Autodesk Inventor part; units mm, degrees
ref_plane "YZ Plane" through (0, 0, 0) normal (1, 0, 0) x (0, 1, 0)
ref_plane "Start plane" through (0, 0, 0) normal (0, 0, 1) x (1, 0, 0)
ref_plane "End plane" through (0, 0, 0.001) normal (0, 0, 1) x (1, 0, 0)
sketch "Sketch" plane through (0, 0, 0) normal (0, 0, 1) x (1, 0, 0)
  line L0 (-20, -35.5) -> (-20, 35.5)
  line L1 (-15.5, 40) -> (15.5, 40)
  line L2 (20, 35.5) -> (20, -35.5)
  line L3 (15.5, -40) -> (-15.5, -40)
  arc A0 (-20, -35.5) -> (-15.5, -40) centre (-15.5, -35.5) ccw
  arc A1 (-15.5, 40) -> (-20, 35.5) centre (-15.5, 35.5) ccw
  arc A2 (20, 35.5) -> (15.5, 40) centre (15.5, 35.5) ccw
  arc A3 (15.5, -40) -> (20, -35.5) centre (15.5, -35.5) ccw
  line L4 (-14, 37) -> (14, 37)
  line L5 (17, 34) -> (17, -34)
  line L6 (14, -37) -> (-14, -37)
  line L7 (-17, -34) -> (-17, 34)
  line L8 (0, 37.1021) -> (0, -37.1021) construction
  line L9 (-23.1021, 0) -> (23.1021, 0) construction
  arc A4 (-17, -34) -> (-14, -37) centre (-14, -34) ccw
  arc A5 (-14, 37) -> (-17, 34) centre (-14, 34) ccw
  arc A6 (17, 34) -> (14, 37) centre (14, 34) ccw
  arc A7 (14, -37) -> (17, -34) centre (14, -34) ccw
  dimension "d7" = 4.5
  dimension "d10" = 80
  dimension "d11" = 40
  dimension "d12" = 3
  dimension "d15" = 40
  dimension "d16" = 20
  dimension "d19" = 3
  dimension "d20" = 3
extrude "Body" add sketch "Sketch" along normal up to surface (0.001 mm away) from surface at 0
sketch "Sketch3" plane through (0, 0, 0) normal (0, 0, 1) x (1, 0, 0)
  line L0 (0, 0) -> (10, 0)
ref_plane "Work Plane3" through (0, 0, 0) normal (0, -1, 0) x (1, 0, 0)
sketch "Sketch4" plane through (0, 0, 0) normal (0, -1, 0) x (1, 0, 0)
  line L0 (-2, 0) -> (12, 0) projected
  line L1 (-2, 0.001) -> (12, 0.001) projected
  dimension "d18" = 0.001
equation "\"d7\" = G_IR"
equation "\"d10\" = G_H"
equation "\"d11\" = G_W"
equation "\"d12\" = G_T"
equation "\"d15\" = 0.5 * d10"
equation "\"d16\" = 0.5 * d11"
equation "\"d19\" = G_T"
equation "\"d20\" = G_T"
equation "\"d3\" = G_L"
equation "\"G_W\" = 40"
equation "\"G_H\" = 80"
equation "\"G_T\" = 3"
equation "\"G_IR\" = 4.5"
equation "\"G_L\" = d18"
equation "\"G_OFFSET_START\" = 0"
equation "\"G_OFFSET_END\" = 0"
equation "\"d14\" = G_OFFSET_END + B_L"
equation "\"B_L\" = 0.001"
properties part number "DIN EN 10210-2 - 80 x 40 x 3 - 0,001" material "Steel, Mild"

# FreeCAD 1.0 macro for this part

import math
import FreeCAD as App
import Part
import Sketcher

V = App.Vector

doc = App.newDocument("Part")
body = doc.addObject("PartDesign::Body", "Body")

sketch1 = body.newObject("Sketcher::SketchObject", "Sketch")
sketch1.AttachmentSupport = (doc.getObject("XY_Plane"), [""])
sketch1.MapMode = "FlatFace"
sketch1.addGeometry([
    Part.LineSegment(V(-20, 35.5, 0), V(-20, -35.5, 0)),
    Part.ArcOfCircle(Part.Circle(V(-15.5, -35.5, 0), V(0, 0, 1), 4.5), math.radians(180), math.radians(270)),
    Part.LineSegment(V(-15.5, -40, 0), V(15.5, -40, 0)),
    Part.ArcOfCircle(Part.Circle(V(15.5, -35.5, 0), V(0, 0, 1), 4.5), math.radians(-90), math.radians(0)),
    Part.LineSegment(V(20, -35.5, 0), V(20, 35.5, 0)),
    Part.ArcOfCircle(Part.Circle(V(15.5, 35.5, 0), V(0, 0, 1), 4.5), math.radians(0), math.radians(90)),
    Part.LineSegment(V(15.5, 40, 0), V(-15.5, 40, 0)),
    Part.ArcOfCircle(Part.Circle(V(-15.5, 35.5, 0), V(0, 0, 1), 4.5), math.radians(90), math.radians(180)),
    Part.ArcOfCircle(Part.Circle(V(-14, 34, 0), V(0, 0, 1), 3), math.radians(90), math.radians(180)),
    Part.LineSegment(V(-14, 37, 0), V(14, 37, 0)),
    Part.ArcOfCircle(Part.Circle(V(14, 34, 0), V(0, 0, 1), 3), math.radians(0), math.radians(90)),
    Part.LineSegment(V(17, 34, 0), V(17, -34, 0)),
    Part.ArcOfCircle(Part.Circle(V(14, -34, 0), V(0, 0, 1), 3), math.radians(-90), math.radians(0)),
    Part.LineSegment(V(14, -37, 0), V(-14, -37, 0)),
    Part.ArcOfCircle(Part.Circle(V(-14, -34, 0), V(0, 0, 1), 3), math.radians(180), math.radians(270)),
    Part.LineSegment(V(-17, -34, 0), V(-17, 34, 0)),
], False)
sketch1.addConstraint([
    Sketcher.Constraint("Tangent", 0, 2, 1, 1),
    Sketcher.Constraint("Tangent", 1, 2, 2, 1),
    Sketcher.Constraint("Tangent", 2, 2, 3, 1),
    Sketcher.Constraint("Tangent", 3, 2, 4, 1),
    Sketcher.Constraint("Tangent", 4, 2, 5, 1),
    Sketcher.Constraint("Tangent", 5, 2, 6, 1),
    Sketcher.Constraint("Tangent", 6, 2, 7, 1),
    Sketcher.Constraint("Tangent", 7, 2, 0, 1),
    Sketcher.Constraint("Tangent", 8, 1, 9, 1),
    Sketcher.Constraint("Tangent", 9, 2, 10, 2),
    Sketcher.Constraint("Tangent", 10, 1, 11, 1),
    Sketcher.Constraint("Tangent", 11, 2, 12, 2),
    Sketcher.Constraint("Tangent", 12, 1, 13, 1),
    Sketcher.Constraint("Tangent", 13, 2, 14, 2),
    Sketcher.Constraint("Tangent", 14, 1, 15, 1),
    Sketcher.Constraint("Tangent", 15, 2, 8, 2),
    Sketcher.Constraint("Vertical", 0),
    Sketcher.Constraint("Horizontal", 2),
    Sketcher.Constraint("Vertical", 4),
    Sketcher.Constraint("Horizontal", 6),
    Sketcher.Constraint("Horizontal", 9),
    Sketcher.Constraint("Vertical", 11),
    Sketcher.Constraint("Horizontal", 13),
    Sketcher.Constraint("Vertical", 15),
    Sketcher.Constraint("Equal", 1, 3),
    Sketcher.Constraint("Equal", 3, 5),
    Sketcher.Constraint("Equal", 5, 7),
    Sketcher.Constraint("Equal", 8, 10),
    Sketcher.Constraint("Equal", 10, 12),
    Sketcher.Constraint("Equal", 12, 14),
    Sketcher.Constraint("Symmetric", 1, 3, 5, 3, -1, 1),
    Sketcher.Constraint("Symmetric", 8, 3, 12, 3, -1, 1),
    Sketcher.Constraint("Radius", 8, 3.0),
    Sketcher.Constraint("Radius", 1, 4.5),
    Sketcher.Constraint("DistanceX", 0, 2, -1, 1, 20.0),
    Sketcher.Constraint("DistanceY", 1, 2, -1, 1, 40.0),
    Sketcher.Constraint("DistanceY", 8, 1, 6, 2, 3.0),
    Sketcher.Constraint("DistanceX", 10, 1, 4, 2, 3.0),
])
pad1 = body.newObject("PartDesign::Pad", "Pad")
pad1.Profile = sketch1
pad1.Length = 0.001

doc.recompute()
